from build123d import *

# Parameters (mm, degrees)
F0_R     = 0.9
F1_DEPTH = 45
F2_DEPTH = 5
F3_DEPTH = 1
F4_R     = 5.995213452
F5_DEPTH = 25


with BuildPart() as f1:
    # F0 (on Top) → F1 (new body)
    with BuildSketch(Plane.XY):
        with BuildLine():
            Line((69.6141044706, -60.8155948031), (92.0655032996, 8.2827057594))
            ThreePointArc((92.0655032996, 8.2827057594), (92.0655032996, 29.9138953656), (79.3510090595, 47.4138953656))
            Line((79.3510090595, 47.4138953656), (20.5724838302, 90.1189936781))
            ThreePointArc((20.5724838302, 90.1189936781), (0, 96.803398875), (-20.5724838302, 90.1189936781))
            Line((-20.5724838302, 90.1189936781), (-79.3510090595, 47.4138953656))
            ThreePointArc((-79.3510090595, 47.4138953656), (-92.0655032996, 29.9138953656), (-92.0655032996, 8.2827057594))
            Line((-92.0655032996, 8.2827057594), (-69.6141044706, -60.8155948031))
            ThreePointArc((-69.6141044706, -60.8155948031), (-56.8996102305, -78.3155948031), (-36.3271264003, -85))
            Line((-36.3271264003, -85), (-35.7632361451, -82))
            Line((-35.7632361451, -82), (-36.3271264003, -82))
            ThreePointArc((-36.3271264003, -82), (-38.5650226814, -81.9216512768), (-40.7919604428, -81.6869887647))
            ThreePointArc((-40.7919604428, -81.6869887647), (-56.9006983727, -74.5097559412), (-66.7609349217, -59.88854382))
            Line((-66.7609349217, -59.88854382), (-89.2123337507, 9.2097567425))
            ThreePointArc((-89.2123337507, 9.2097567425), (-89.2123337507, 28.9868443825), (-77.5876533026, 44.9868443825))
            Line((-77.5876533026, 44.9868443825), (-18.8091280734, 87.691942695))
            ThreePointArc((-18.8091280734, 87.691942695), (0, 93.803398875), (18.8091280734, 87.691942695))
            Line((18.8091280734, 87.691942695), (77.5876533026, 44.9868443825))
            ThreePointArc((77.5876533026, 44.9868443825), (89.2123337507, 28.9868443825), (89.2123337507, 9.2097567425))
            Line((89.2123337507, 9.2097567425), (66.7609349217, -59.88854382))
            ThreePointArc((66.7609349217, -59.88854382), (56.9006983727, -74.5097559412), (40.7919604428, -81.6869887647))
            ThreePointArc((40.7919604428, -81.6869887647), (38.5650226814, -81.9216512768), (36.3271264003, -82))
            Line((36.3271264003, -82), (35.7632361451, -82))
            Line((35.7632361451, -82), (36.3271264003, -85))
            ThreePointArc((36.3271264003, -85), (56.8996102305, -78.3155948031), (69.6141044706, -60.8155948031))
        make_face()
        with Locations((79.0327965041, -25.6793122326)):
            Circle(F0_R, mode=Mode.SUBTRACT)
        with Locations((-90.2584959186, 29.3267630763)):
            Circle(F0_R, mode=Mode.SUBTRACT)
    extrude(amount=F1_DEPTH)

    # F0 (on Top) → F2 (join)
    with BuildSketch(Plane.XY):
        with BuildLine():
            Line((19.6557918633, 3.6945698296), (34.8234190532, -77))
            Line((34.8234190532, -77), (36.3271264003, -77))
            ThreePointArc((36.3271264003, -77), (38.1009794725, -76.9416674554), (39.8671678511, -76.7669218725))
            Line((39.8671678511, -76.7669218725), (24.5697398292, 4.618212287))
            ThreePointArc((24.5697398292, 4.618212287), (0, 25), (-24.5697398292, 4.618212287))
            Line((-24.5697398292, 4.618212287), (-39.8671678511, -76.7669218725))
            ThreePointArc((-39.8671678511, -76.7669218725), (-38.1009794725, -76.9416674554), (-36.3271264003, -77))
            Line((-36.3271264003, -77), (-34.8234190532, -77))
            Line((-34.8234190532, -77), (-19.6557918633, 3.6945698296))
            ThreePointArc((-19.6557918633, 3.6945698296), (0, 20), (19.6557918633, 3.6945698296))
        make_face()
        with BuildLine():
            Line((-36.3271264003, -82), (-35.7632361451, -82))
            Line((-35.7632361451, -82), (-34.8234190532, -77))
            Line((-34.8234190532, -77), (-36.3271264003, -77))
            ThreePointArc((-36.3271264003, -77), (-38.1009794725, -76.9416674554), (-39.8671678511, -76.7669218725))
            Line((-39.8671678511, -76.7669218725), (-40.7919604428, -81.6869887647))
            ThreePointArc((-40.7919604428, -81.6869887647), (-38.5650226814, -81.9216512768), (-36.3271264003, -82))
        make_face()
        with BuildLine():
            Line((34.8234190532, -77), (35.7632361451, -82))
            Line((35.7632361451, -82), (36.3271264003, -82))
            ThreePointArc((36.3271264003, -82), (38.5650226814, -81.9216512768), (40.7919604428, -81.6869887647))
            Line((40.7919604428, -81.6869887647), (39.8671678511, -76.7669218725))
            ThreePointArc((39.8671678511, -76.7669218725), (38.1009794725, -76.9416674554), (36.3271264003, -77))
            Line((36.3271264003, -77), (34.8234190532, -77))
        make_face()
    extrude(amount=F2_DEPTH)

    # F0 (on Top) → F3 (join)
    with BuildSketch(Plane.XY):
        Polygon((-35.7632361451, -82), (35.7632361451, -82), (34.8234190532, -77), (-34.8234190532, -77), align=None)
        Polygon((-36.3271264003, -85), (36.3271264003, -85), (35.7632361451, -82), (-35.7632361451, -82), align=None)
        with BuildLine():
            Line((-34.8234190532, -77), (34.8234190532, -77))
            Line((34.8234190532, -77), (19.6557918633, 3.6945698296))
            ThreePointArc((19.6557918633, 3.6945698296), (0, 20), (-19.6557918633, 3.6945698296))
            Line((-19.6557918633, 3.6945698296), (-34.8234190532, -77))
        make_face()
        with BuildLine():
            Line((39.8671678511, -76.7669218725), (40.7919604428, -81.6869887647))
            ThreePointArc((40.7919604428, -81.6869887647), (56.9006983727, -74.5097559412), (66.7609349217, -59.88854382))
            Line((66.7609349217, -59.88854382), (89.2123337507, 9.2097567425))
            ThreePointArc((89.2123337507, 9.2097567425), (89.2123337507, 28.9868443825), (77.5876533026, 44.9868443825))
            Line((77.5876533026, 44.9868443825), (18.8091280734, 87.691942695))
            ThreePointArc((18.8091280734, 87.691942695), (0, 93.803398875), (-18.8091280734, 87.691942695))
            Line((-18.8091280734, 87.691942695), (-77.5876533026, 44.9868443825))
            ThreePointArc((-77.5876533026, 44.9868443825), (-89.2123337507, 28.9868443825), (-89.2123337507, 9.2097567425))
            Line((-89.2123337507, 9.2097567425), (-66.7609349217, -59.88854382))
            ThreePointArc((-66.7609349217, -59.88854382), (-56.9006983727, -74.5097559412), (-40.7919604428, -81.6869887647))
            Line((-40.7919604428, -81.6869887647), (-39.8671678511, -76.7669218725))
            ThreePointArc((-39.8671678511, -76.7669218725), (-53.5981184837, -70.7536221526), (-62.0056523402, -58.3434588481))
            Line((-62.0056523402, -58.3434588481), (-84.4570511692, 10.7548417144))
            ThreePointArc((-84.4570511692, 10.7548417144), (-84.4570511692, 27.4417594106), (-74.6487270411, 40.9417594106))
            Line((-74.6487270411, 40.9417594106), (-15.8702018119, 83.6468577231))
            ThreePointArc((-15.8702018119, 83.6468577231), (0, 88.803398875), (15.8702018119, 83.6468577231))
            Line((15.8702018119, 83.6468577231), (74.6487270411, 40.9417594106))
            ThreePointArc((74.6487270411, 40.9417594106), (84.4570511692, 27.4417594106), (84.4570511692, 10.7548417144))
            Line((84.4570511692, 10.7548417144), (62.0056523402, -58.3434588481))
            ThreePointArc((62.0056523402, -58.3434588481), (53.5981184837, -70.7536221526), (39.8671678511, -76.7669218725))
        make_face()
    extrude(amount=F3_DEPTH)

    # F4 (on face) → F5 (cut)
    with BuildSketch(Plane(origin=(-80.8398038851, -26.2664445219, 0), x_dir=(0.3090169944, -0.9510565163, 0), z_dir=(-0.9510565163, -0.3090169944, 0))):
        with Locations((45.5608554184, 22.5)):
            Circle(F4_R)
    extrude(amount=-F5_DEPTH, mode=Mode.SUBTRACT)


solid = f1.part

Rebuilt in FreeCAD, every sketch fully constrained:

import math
import FreeCAD as App
import Part
import Sketcher

V = App.Vector
Q = App.Units.Quantity

doc = App.newDocument("Part")
body = doc.addObject("PartDesign::Body", "Body")

# Sketch on XY plane
sketch1 = body.newObject("Sketcher::SketchObject", "Sketch")
sketch1.AttachmentSupport = (doc.getObject("XY_Plane"), [""])
sketch1.MapMode = "FlatFace"
sketch1.addGeometry(Part.LineSegment(V(69.6, -60.8, 0), V(92.1, 8.3, 0)), False)
sketch1.addGeometry(Part.ArcOfCircle(Part.Circle(V(58.8, 19.1, 0), V(0, 0, 1), 35), math.radians(-18), math.radians(54)), False)
sketch1.addGeometry(Part.LineSegment(V(79.4, 47.4, 0), V(20.6, 90.1, 0)), False)
sketch1.addGeometry(Part.ArcOfCircle(Part.Circle(V(0, 61.8, 0), V(0, 0, 1), 35), math.radians(54), math.radians(126)), False)
sketch1.addGeometry(Part.LineSegment(V(-20.6, 90.1, 0), V(-79.4, 47.4, 0)), False)
sketch1.addGeometry(Part.ArcOfCircle(Part.Circle(V(-58.8, 19.1, 0), V(0, 0, 1), 35), math.radians(126), math.radians(198)), False)
sketch1.addGeometry(Part.LineSegment(V(-92.1, 8.3, 0), V(-69.6, -60.8, 0)), False)
sketch1.addGeometry(Part.ArcOfCircle(Part.Circle(V(-36.3, -50, 0), V(0, 0, 1), 35), math.radians(-162), math.radians(-90)), False)
sketch1.addGeometry(Part.LineSegment(V(-36.3, -85, 0), V(-35.8, -82, 0)), False)
sketch1.addGeometry(Part.LineSegment(V(-35.8, -82, 0), V(-36.3, -82, 0)), False)
sketch1.addGeometry(Part.ArcOfCircle(Part.Circle(V(-36.3, -50, 0), V(0, 0, 1), 32), math.radians(-98.02), math.radians(-90)), False)
sketch1.addGeometry(Part.ArcOfCircle(Part.Circle(V(-36.3, -50, 0), V(0, 0, 1), 32), math.radians(-162), math.radians(-98)), False)
sketch1.addGeometry(Part.LineSegment(V(-66.8, -59.9, 0), V(-89.2, 9.2, 0)), False)
sketch1.addGeometry(Part.ArcOfCircle(Part.Circle(V(-58.8, 19.1, 0), V(0, 0, 1), 32), math.radians(126), math.radians(198)), False)
sketch1.addGeometry(Part.LineSegment(V(-77.6, 45, 0), V(-18.8, 87.7, 0)), False)
sketch1.addGeometry(Part.ArcOfCircle(Part.Circle(V(0, 61.8, 0), V(0, 0, 1), 32), math.radians(54), math.radians(126)), False)
sketch1.addGeometry(Part.LineSegment(V(18.8, 87.7, 0), V(77.6, 45, 0)), False)
sketch1.addGeometry(Part.ArcOfCircle(Part.Circle(V(58.8, 19.1, 0), V(0, 0, 1), 32), math.radians(-18), math.radians(54)), False)
sketch1.addGeometry(Part.LineSegment(V(89.2, 9.2, 0), V(66.8, -59.9, 0)), False)
sketch1.addGeometry(Part.ArcOfCircle(Part.Circle(V(36.3, -50, 0), V(0, 0, 1), 32), math.radians(-82), math.radians(-18)), False)
sketch1.addGeometry(Part.ArcOfCircle(Part.Circle(V(36.3, -50, 0), V(0, 0, 1), 32), math.radians(-90), math.radians(-81.98)), False)
sketch1.addGeometry(Part.LineSegment(V(36.3, -82, 0), V(35.8, -82, 0)), False)
sketch1.addGeometry(Part.LineSegment(V(35.8, -82, 0), V(36.3, -85, 0)), False)
sketch1.addGeometry(Part.ArcOfCircle(Part.Circle(V(36.3, -50, 0), V(0, 0, 1), 35), math.radians(-90), math.radians(-18)), False)
sketch1.addGeometry(Part.Circle(V(79, -25.7, 0), V(0, 0, 1), 0.9), False)
sketch1.addGeometry(Part.Circle(V(-90.3, 29.3, 0), V(0, 0, 1), 0.9), False)
sketch1.addConstraint(Sketcher.Constraint("Tangent", 0, 2, 1, 1))
sketch1.addConstraint(Sketcher.Constraint("Tangent", 1, 2, 2, 1))
sketch1.addConstraint(Sketcher.Constraint("Tangent", 2, 2, 3, 1))
sketch1.addConstraint(Sketcher.Constraint("Tangent", 3, 2, 4, 1))
sketch1.addConstraint(Sketcher.Constraint("Tangent", 4, 2, 5, 1))
sketch1.addConstraint(Sketcher.Constraint("Tangent", 5, 2, 6, 1))
sketch1.addConstraint(Sketcher.Constraint("Tangent", 6, 2, 7, 1))
sketch1.addConstraint(Sketcher.Constraint("Coincident", 7, 2, 8, 1))
sketch1.addConstraint(Sketcher.Constraint("Coincident", 8, 2, 9, 1))
sketch1.addConstraint(Sketcher.Constraint("Tangent", 9, 2, 10, 2))
sketch1.addConstraint(Sketcher.Constraint("Tangent", 10, 1, 11, 2))
sketch1.addConstraint(Sketcher.Constraint("Tangent", 11, 1, 12, 1))
sketch1.addConstraint(Sketcher.Constraint("Tangent", 12, 2, 13, 2))
sketch1.addConstraint(Sketcher.Constraint("Tangent", 13, 1, 14, 1))
sketch1.addConstraint(Sketcher.Constraint("Tangent", 14, 2, 15, 2))
sketch1.addConstraint(Sketcher.Constraint("Tangent", 15, 1, 16, 1))
sketch1.addConstraint(Sketcher.Constraint("Tangent", 16, 2, 17, 2))
sketch1.addConstraint(Sketcher.Constraint("Tangent", 17, 1, 18, 1))
sketch1.addConstraint(Sketcher.Constraint("Tangent", 18, 2, 19, 2))
sketch1.addConstraint(Sketcher.Constraint("Tangent", 19, 1, 20, 2))
sketch1.addConstraint(Sketcher.Constraint("Tangent", 20, 1, 21, 1))
sketch1.addConstraint(Sketcher.Constraint("Coincident", 21, 2, 22, 1))
sketch1.addConstraint(Sketcher.Constraint("Coincident", 22, 2, 23, 1))
sketch1.addConstraint(Sketcher.Constraint("Tangent", 23, 2, 0, 1))
sketch1.addConstraint(Sketcher.Constraint("Horizontal", 9))
sketch1.addConstraint(Sketcher.Constraint("Horizontal", 21))
sketch1.addConstraint(Sketcher.Constraint("Coincident", 10, 3, 7, 3))
sketch1.addConstraint(Sketcher.Constraint("Coincident", 13, 3, 5, 3))
sketch1.addConstraint(Sketcher.Constraint("Coincident", 15, 3, 3, 3))
sketch1.addConstraint(Sketcher.Constraint("Coincident", 17, 3, 1, 3))
sketch1.addConstraint(Sketcher.Constraint("Coincident", 23, 3, 19, 3))
sketch1.addConstraint(Sketcher.Constraint("Equal", 1, 3))
sketch1.addConstraint(Sketcher.Constraint("Equal", 3, 5))
sketch1.addConstraint(Sketcher.Constraint("Equal", 5, 7))
sketch1.addConstraint(Sketcher.Constraint("Equal", 10, 11))
sketch1.addConstraint(Sketcher.Constraint("Equal", 11, 13))
sketch1.addConstraint(Sketcher.Constraint("Equal", 13, 15))
sketch1.addConstraint(Sketcher.Constraint("Equal", 15, 17))
sketch1.addConstraint(Sketcher.Constraint("Equal", 17, 19))
sketch1.addConstraint(Sketcher.Constraint("Equal", 19, 20))
sketch1.addConstraint(Sketcher.Constraint("Equal", 7, 23))
sketch1.addConstraint(Sketcher.Constraint("Equal", 24, 25))
sketch1.addConstraint(Sketcher.Constraint("Symmetric", 1, 3, 5, 3, -2))
sketch1.addConstraint(Sketcher.Constraint("Symmetric", 7, 3, 19, 3, -2))
sketch1.addConstraint(Sketcher.Constraint("PointOnObject", 3, 3, -2))
sketch1.addConstraint(Sketcher.Constraint("Horizontal", 10, 1, 19, 1))
sketch1.addConstraint(Sketcher.Constraint("Vertical", 11, 3, 7, 2))
sketch1.addConstraint(Sketcher.Constraint("Vertical", 20, 1, 22, 2))
sketch1.addConstraint(Sketcher.Constraint("Equal", 9, 21))
sketch1.addConstraint(Sketcher.Constraint("Equal", 0, 2))
sketch1.addConstraint(Sketcher.Constraint("Radius", 1, 35.0))
sketch1.addConstraint(Sketcher.Constraint("Radius", 10, 32.0))
sketch1.addConstraint(Sketcher.Constraint("Diameter", 24, 1.8))
sketch1.addConstraint(Sketcher.Constraint("Angle", 0, Q("72 deg")))
sketch1.addConstraint(Sketcher.Constraint("Angle", 2, Q("144 deg")))
sketch1.addConstraint(Sketcher.Constraint("DistanceY", 7, 3, -1, 1, 50.0))
sketch1.addConstraint(Sketcher.Constraint("DistanceX", 9, 2, 9, 1, 0.56389))
sketch1.addConstraint(Sketcher.Constraint("DistanceY", -1, 1, 1, 3, 19.098301))
sketch1.addConstraint(Sketcher.Constraint("DistanceX", 10, 1, -1, 1, 40.79196))
sketch1.addConstraint(Sketcher.Constraint("DistanceX", 19, 3, 24, 3, 42.70567))
sketch1.addConstraint(Sketcher.Constraint("DistanceX", 25, 3, 13, 3, 31.479971))
sketch1.addConstraint(Sketcher.Constraint("DistanceY", 25, 3, 13, 1, 15.660081))
sketch1.addConstraint(Sketcher.Constraint("DistanceY", 24, 3, 17, 1, 34.889069))
pad1 = body.newObject("PartDesign::Pad", "Pad")
pad1.Profile = sketch1
pad1.Length = 45

# Sketch on XY plane
sketch2 = body.newObject("Sketcher::SketchObject", "Sketch001")
sketch2.AttachmentSupport = (doc.getObject("XY_Plane"), [""])
sketch2.MapMode = "FlatFace"
sketch2.addGeometry(Part.LineSegment(V(19.7, 3.7, 0), V(35.8, -82, 0)), False)
sketch2.addGeometry(Part.LineSegment(V(35.8, -82, 0), V(36.3, -82, 0)), False)
sketch2.addGeometry(Part.ArcOfCircle(Part.Circle(V(36.3, -50, 0), V(0, 0, 1), 32), math.radians(-90), math.radians(-81.98)), False)
sketch2.addGeometry(Part.LineSegment(V(40.8, -81.7, 0), V(39.9, -76.8, 0)), False)
sketch2.addGeometry(Part.LineSegment(V(39.9, -76.8, 0), V(24.6, 4.6, 0)), False)
sketch2.addGeometry(Part.ArcOfCircle(Part.Circle(V(0, 0, 0), V(0, 0, 1), 25), math.radians(11), math.radians(169)), False)
sketch2.addGeometry(Part.LineSegment(V(-24.6, 4.6, 0), V(-39.9, -76.8, 0)), False)
sketch2.addGeometry(Part.LineSegment(V(-39.9, -76.8, 0), V(-40.8, -81.7, 0)), False)
sketch2.addGeometry(Part.ArcOfCircle(Part.Circle(V(-36.3, -50, 0), V(0, 0, 1), 32), math.radians(-98.02), math.radians(-90)), False)
sketch2.addGeometry(Part.LineSegment(V(-36.3, -82, 0), V(-35.8, -82, 0)), False)
sketch2.addGeometry(Part.LineSegment(V(-35.8, -82, 0), V(-19.7, 3.7, 0)), False)
sketch2.addGeometry(Part.ArcOfCircle(Part.Circle(V(0, 0, 0), V(0, 0, 1), 20), math.radians(11), math.radians(169)), False)
sketch2.addConstraint(Sketcher.Constraint("Coincident", 0, 2, 1, 1))
sketch2.addConstraint(Sketcher.Constraint("Tangent", 1, 2, 2, 1))
sketch2.addConstraint(Sketcher.Constraint("Coincident", 2, 2, 3, 1))
sketch2.addConstraint(Sketcher.Constraint("Coincident", 3, 2, 4, 1))
sketch2.addConstraint(Sketcher.Constraint("Tangent", 4, 2, 5, 1))
sketch2.addConstraint(Sketcher.Constraint("Tangent", 5, 2, 6, 1))
sketch2.addConstraint(Sketcher.Constraint("Coincident", 6, 2, 7, 1))
sketch2.addConstraint(Sketcher.Constraint("Coincident", 7, 2, 8, 1))
sketch2.addConstraint(Sketcher.Constraint("Tangent", 8, 2, 9, 1))
sketch2.addConstraint(Sketcher.Constraint("Coincident", 9, 2, 10, 1))
sketch2.addConstraint(Sketcher.Constraint("Tangent", 10, 2, 11, 2))
sketch2.addConstraint(Sketcher.Constraint("Tangent", 11, 1, 0, 1))
sketch2.addConstraint(Sketcher.Constraint("Horizontal", 1))
sketch2.addConstraint(Sketcher.Constraint("Horizontal", 9))
sketch2.addConstraint(Sketcher.Constraint("Coincident", 5, 3, -1, 1))
sketch2.addConstraint(Sketcher.Constraint("Coincident", 11, 3, -1, 1))
sketch2.addConstraint(Sketcher.Constraint("Equal", 2, 8))
sketch2.addConstraint(Sketcher.Constraint("Symmetric", 2, 3, 8, 3, -2))
sketch2.addConstraint(Sketcher.Constraint("Symmetric", 3, 2, 6, 2, -2))
sketch2.addConstraint(Sketcher.Constraint("Parallel", 0, 3))
sketch2.addConstraint(Sketcher.Constraint("Parallel", 3, 4))
sketch2.addConstraint(Sketcher.Constraint("Parallel", 6, 7))
sketch2.addConstraint(Sketcher.Constraint("Parallel", 7, 10))
sketch2.addConstraint(Sketcher.Constraint("Radius", 2, 32.0))
sketch2.addConstraint(Sketcher.Constraint("Radius", 5, 25.0))
sketch2.addConstraint(Sketcher.Constraint("Radius", 11, 20.0))
sketch2.addConstraint(Sketcher.Constraint("DistanceY", 2, 3, -1, 1, 50.0))
sketch2.addConstraint(Sketcher.Constraint("DistanceX", 1, 1, 1, 2, 0.56389))
sketch2.addConstraint(Sketcher.Constraint("DistanceX", -1, 1, 2, 2, 40.79196))
sketch2.addConstraint(Sketcher.Constraint("DistanceY", 3, 2, -1, 1, 76.766922))
pad2 = body.newObject("PartDesign::Pad", "Pad001")
pad2.Profile = sketch2
pad2.Length = 5

# Sketch on XY plane
sketch3 = body.newObject("Sketcher::SketchObject", "Sketch002")
sketch3.AttachmentSupport = (doc.getObject("XY_Plane"), [""])
sketch3.MapMode = "FlatFace"
sketch3.addGeometry(Part.LineSegment(V(35.8, -82, 0), V(19.7, 3.7, 0)), False)
sketch3.addGeometry(Part.ArcOfCircle(Part.Circle(V(0, 0, 0), V(0, 0, 1), 20), math.radians(11), math.radians(169)), False)
sketch3.addGeometry(Part.LineSegment(V(-19.7, 3.7, 0), V(-35.8, -82, 0)), False)
sketch3.addGeometry(Part.LineSegment(V(-35.8, -82, 0), V(-36.3, -85, 0)), False)
sketch3.addGeometry(Part.LineSegment(V(-36.3, -85, 0), V(36.3, -85, 0)), False)
sketch3.addGeometry(Part.LineSegment(V(36.3, -85, 0), V(35.8, -82, 0)), False)
sketch3.addGeometry(Part.LineSegment(V(39.9, -76.8, 0), V(40.8, -81.7, 0)), False)
sketch3.addGeometry(Part.ArcOfCircle(Part.Circle(V(36.3, -50, 0), V(0, 0, 1), 32), math.radians(-82), math.radians(-18)), False)
sketch3.addGeometry(Part.LineSegment(V(66.8, -59.9, 0), V(89.2, 9.2, 0)), False)
sketch3.addGeometry(Part.ArcOfCircle(Part.Circle(V(58.8, 19.1, 0), V(0, 0, 1), 32), math.radians(-18), math.radians(54)), False)
sketch3.addGeometry(Part.LineSegment(V(77.6, 45, 0), V(18.8, 87.7, 0)), False)
sketch3.addGeometry(Part.ArcOfCircle(Part.Circle(V(0, 61.8, 0), V(0, 0, 1), 32), math.radians(54), math.radians(126)), False)
sketch3.addGeometry(Part.LineSegment(V(-18.8, 87.7, 0), V(-77.6, 45, 0)), False)
sketch3.addGeometry(Part.ArcOfCircle(Part.Circle(V(-58.8, 19.1, 0), V(0, 0, 1), 32), math.radians(126), math.radians(198)), False)
sketch3.addGeometry(Part.LineSegment(V(-89.2, 9.2, 0), V(-66.8, -59.9, 0)), False)
sketch3.addGeometry(Part.ArcOfCircle(Part.Circle(V(-36.3, -50, 0), V(0, 0, 1), 32), math.radians(-162), math.radians(-98)), False)
sketch3.addGeometry(Part.LineSegment(V(-40.8, -81.7, 0), V(-39.9, -76.8, 0)), False)
sketch3.addGeometry(Part.ArcOfCircle(Part.Circle(V(-36.3, -50, 0), V(0, 0, 1), 27), math.radians(-162), math.radians(-98)), False)
sketch3.addGeometry(Part.LineSegment(V(-62, -58.3, 0), V(-84.5, 10.8, 0)), False)
sketch3.addGeometry(Part.ArcOfCircle(Part.Circle(V(-58.8, 19.1, 0), V(0, 0, 1), 27), math.radians(126), math.radians(198)), False)
sketch3.addGeometry(Part.LineSegment(V(-74.6, 40.9, 0), V(-15.9, 83.6, 0)), False)
sketch3.addGeometry(Part.ArcOfCircle(Part.Circle(V(0, 61.8, 0), V(0, 0, 1), 27), math.radians(54), math.radians(126)), False)
sketch3.addGeometry(Part.LineSegment(V(15.9, 83.6, 0), V(74.6, 40.9, 0)), False)
sketch3.addGeometry(Part.ArcOfCircle(Part.Circle(V(58.8, 19.1, 0), V(0, 0, 1), 27), math.radians(-18), math.radians(54)), False)
sketch3.addGeometry(Part.LineSegment(V(84.5, 10.8, 0), V(62, -58.3, 0)), False)
sketch3.addGeometry(Part.ArcOfCircle(Part.Circle(V(36.3, -50, 0), V(0, 0, 1), 27), math.radians(-82), math.radians(-18)), False)
sketch3.addConstraint(Sketcher.Constraint("Tangent", 0, 2, 1, 1))
sketch3.addConstraint(Sketcher.Constraint("Tangent", 1, 2, 2, 1))
sketch3.addConstraint(Sketcher.Constraint("Coincident", 2, 2, 3, 1))
sketch3.addConstraint(Sketcher.Constraint("Coincident", 3, 2, 4, 1))
sketch3.addConstraint(Sketcher.Constraint("Coincident", 4, 2, 5, 1))
sketch3.addConstraint(Sketcher.Constraint("Coincident", 5, 2, 0, 1))
sketch3.addConstraint(Sketcher.Constraint("Coincident", 6, 2, 7, 1))
sketch3.addConstraint(Sketcher.Constraint("Tangent", 7, 2, 8, 1))
sketch3.addConstraint(Sketcher.Constraint("Tangent", 8, 2, 9, 1))
sketch3.addConstraint(Sketcher.Constraint("Tangent", 9, 2, 10, 1))
sketch3.addConstraint(Sketcher.Constraint("Tangent", 10, 2, 11, 1))
sketch3.addConstraint(Sketcher.Constraint("Tangent", 11, 2, 12, 1))
sketch3.addConstraint(Sketcher.Constraint("Tangent", 12, 2, 13, 1))
sketch3.addConstraint(Sketcher.Constraint("Tangent", 13, 2, 14, 1))
sketch3.addConstraint(Sketcher.Constraint("Tangent", 14, 2, 15, 1))
sketch3.addConstraint(Sketcher.Constraint("Coincident", 15, 2, 16, 1))
sketch3.addConstraint(Sketcher.Constraint("Coincident", 16, 2, 17, 2))
sketch3.addConstraint(Sketcher.Constraint("Tangent", 17, 1, 18, 1))
sketch3.addConstraint(Sketcher.Constraint("Tangent", 18, 2, 19, 2))
sketch3.addConstraint(Sketcher.Constraint("Tangent", 19, 1, 20, 1))
sketch3.addConstraint(Sketcher.Constraint("Tangent", 20, 2, 21, 2))
sketch3.addConstraint(Sketcher.Constraint("Tangent", 21, 1, 22, 1))
sketch3.addConstraint(Sketcher.Constraint("Tangent", 22, 2, 23, 2))
sketch3.addConstraint(Sketcher.Constraint("Tangent", 23, 1, 24, 1))
sketch3.addConstraint(Sketcher.Constraint("Tangent", 24, 2, 25, 2))
sketch3.addConstraint(Sketcher.Constraint("Coincident", 25, 1, 6, 1))
sketch3.addConstraint(Sketcher.Constraint("Horizontal", 4))
sketch3.addConstraint(Sketcher.Constraint("Coincident", 1, 3, -1, 1))
sketch3.addConstraint(Sketcher.Constraint("Coincident", 17, 3, 15, 3))
sketch3.addConstraint(Sketcher.Constraint("Coincident", 19, 3, 13, 3))
sketch3.addConstraint(Sketcher.Constraint("Coincident", 21, 3, 11, 3))
sketch3.addConstraint(Sketcher.Constraint("Coincident", 23, 3, 9, 3))
sketch3.addConstraint(Sketcher.Constraint("Coincident", 25, 3, 7, 3))
sketch3.addConstraint(Sketcher.Constraint("Equal", 7, 9))
sketch3.addConstraint(Sketcher.Constraint("Equal", 9, 11))
sketch3.addConstraint(Sketcher.Constraint("Equal", 11, 13))
sketch3.addConstraint(Sketcher.Constraint("Equal", 13, 15))
sketch3.addConstraint(Sketcher.Constraint("Equal", 17, 19))
sketch3.addConstraint(Sketcher.Constraint("Equal", 19, 21))
sketch3.addConstraint(Sketcher.Constraint("Equal", 21, 23))
sketch3.addConstraint(Sketcher.Constraint("Equal", 23, 25))
sketch3.addConstraint(Sketcher.Constraint("Symmetric", 9, 3, 13, 3, -2))
sketch3.addConstraint(Sketcher.Constraint("Symmetric", 7, 3, 15, 3, -2))
sketch3.addConstraint(Sketcher.Constraint("Symmetric", 2, 2, 5, 2, -2))
sketch3.addConstraint(Sketcher.Constraint("PointOnObject", 11, 3, -2))
sketch3.addConstraint(Sketcher.Constraint("Parallel", 2, 3))
sketch3.addConstraint(Sketcher.Constraint("Parallel", 0, 5))
sketch3.addConstraint(Sketcher.Constraint("Parallel", 5, 6))
sketch3.addConstraint(Sketcher.Constraint("Parallel", 3, 16))
sketch3.addConstraint(Sketcher.Constraint("Horizontal", 6, 2, 15, 2))
sketch3.addConstraint(Sketcher.Constraint("Vertical", 17, 3, 3, 2))
sketch3.addConstraint(Sketcher.Constraint("Equal", 8, 10))
sketch3.addConstraint(Sketcher.Constraint("Radius", 1, 20.0))
sketch3.addConstraint(Sketcher.Constraint("Radius", 7, 32.0))
sketch3.addConstraint(Sketcher.Constraint("Radius", 17, 27.0))
sketch3.addConstraint(Sketcher.Constraint("Angle", 8, Q("72 deg")))
sketch3.addConstraint(Sketcher.Constraint("Angle", 10, Q("144 deg")))
sketch3.addConstraint(Sketcher.Constraint("DistanceY", 7, 3, -1, 1, 50.0))
sketch3.addConstraint(Sketcher.Constraint("DistanceY", 2, 2, -1, 1, 82.0))
sketch3.addConstraint(Sketcher.Constraint("DistanceY", 3, 2, -1, 1, 85.0))
sketch3.addConstraint(Sketcher.Constraint("DistanceY", -1, 1, 9, 3, 19.098301))
sketch3.addConstraint(Sketcher.Constraint("DistanceX", -1, 1, 6, 2, 40.79196))
pad3 = body.newObject("PartDesign::Pad", "Pad002")
pad3.Profile = sketch3
pad3.Length = 1

# Sketch on an angled plane
sketch4 = body.newObject("Sketcher::SketchObject", "Sketch003")
sketch4.Placement = App.Placement(V(-80.839804, -26.266445, 0), App.Rotation(V(0.309016994, -0.951056516, 0), V(0, 0, 0.999999999), V(-0.951056516, -0.309016994, 0), "ZXY"))
sketch4.addGeometry(Part.Circle(V(46, 22, 0), V(0, 0, 1), 6), False)
sketch4.addConstraint(Sketcher.Constraint("DistanceY", -1, 1, 0, 3, 22.5))
sketch4.addConstraint(Sketcher.Constraint("Diameter", 0, 11.990427))
sketch4.addConstraint(Sketcher.Constraint("DistanceX", -1, 1, 0, 3, 45.560855))
pocket1 = body.newObject("PartDesign::Pocket", "Pocket")
pocket1.Profile = sketch4
pocket1.Length = 25

doc.recompute()
